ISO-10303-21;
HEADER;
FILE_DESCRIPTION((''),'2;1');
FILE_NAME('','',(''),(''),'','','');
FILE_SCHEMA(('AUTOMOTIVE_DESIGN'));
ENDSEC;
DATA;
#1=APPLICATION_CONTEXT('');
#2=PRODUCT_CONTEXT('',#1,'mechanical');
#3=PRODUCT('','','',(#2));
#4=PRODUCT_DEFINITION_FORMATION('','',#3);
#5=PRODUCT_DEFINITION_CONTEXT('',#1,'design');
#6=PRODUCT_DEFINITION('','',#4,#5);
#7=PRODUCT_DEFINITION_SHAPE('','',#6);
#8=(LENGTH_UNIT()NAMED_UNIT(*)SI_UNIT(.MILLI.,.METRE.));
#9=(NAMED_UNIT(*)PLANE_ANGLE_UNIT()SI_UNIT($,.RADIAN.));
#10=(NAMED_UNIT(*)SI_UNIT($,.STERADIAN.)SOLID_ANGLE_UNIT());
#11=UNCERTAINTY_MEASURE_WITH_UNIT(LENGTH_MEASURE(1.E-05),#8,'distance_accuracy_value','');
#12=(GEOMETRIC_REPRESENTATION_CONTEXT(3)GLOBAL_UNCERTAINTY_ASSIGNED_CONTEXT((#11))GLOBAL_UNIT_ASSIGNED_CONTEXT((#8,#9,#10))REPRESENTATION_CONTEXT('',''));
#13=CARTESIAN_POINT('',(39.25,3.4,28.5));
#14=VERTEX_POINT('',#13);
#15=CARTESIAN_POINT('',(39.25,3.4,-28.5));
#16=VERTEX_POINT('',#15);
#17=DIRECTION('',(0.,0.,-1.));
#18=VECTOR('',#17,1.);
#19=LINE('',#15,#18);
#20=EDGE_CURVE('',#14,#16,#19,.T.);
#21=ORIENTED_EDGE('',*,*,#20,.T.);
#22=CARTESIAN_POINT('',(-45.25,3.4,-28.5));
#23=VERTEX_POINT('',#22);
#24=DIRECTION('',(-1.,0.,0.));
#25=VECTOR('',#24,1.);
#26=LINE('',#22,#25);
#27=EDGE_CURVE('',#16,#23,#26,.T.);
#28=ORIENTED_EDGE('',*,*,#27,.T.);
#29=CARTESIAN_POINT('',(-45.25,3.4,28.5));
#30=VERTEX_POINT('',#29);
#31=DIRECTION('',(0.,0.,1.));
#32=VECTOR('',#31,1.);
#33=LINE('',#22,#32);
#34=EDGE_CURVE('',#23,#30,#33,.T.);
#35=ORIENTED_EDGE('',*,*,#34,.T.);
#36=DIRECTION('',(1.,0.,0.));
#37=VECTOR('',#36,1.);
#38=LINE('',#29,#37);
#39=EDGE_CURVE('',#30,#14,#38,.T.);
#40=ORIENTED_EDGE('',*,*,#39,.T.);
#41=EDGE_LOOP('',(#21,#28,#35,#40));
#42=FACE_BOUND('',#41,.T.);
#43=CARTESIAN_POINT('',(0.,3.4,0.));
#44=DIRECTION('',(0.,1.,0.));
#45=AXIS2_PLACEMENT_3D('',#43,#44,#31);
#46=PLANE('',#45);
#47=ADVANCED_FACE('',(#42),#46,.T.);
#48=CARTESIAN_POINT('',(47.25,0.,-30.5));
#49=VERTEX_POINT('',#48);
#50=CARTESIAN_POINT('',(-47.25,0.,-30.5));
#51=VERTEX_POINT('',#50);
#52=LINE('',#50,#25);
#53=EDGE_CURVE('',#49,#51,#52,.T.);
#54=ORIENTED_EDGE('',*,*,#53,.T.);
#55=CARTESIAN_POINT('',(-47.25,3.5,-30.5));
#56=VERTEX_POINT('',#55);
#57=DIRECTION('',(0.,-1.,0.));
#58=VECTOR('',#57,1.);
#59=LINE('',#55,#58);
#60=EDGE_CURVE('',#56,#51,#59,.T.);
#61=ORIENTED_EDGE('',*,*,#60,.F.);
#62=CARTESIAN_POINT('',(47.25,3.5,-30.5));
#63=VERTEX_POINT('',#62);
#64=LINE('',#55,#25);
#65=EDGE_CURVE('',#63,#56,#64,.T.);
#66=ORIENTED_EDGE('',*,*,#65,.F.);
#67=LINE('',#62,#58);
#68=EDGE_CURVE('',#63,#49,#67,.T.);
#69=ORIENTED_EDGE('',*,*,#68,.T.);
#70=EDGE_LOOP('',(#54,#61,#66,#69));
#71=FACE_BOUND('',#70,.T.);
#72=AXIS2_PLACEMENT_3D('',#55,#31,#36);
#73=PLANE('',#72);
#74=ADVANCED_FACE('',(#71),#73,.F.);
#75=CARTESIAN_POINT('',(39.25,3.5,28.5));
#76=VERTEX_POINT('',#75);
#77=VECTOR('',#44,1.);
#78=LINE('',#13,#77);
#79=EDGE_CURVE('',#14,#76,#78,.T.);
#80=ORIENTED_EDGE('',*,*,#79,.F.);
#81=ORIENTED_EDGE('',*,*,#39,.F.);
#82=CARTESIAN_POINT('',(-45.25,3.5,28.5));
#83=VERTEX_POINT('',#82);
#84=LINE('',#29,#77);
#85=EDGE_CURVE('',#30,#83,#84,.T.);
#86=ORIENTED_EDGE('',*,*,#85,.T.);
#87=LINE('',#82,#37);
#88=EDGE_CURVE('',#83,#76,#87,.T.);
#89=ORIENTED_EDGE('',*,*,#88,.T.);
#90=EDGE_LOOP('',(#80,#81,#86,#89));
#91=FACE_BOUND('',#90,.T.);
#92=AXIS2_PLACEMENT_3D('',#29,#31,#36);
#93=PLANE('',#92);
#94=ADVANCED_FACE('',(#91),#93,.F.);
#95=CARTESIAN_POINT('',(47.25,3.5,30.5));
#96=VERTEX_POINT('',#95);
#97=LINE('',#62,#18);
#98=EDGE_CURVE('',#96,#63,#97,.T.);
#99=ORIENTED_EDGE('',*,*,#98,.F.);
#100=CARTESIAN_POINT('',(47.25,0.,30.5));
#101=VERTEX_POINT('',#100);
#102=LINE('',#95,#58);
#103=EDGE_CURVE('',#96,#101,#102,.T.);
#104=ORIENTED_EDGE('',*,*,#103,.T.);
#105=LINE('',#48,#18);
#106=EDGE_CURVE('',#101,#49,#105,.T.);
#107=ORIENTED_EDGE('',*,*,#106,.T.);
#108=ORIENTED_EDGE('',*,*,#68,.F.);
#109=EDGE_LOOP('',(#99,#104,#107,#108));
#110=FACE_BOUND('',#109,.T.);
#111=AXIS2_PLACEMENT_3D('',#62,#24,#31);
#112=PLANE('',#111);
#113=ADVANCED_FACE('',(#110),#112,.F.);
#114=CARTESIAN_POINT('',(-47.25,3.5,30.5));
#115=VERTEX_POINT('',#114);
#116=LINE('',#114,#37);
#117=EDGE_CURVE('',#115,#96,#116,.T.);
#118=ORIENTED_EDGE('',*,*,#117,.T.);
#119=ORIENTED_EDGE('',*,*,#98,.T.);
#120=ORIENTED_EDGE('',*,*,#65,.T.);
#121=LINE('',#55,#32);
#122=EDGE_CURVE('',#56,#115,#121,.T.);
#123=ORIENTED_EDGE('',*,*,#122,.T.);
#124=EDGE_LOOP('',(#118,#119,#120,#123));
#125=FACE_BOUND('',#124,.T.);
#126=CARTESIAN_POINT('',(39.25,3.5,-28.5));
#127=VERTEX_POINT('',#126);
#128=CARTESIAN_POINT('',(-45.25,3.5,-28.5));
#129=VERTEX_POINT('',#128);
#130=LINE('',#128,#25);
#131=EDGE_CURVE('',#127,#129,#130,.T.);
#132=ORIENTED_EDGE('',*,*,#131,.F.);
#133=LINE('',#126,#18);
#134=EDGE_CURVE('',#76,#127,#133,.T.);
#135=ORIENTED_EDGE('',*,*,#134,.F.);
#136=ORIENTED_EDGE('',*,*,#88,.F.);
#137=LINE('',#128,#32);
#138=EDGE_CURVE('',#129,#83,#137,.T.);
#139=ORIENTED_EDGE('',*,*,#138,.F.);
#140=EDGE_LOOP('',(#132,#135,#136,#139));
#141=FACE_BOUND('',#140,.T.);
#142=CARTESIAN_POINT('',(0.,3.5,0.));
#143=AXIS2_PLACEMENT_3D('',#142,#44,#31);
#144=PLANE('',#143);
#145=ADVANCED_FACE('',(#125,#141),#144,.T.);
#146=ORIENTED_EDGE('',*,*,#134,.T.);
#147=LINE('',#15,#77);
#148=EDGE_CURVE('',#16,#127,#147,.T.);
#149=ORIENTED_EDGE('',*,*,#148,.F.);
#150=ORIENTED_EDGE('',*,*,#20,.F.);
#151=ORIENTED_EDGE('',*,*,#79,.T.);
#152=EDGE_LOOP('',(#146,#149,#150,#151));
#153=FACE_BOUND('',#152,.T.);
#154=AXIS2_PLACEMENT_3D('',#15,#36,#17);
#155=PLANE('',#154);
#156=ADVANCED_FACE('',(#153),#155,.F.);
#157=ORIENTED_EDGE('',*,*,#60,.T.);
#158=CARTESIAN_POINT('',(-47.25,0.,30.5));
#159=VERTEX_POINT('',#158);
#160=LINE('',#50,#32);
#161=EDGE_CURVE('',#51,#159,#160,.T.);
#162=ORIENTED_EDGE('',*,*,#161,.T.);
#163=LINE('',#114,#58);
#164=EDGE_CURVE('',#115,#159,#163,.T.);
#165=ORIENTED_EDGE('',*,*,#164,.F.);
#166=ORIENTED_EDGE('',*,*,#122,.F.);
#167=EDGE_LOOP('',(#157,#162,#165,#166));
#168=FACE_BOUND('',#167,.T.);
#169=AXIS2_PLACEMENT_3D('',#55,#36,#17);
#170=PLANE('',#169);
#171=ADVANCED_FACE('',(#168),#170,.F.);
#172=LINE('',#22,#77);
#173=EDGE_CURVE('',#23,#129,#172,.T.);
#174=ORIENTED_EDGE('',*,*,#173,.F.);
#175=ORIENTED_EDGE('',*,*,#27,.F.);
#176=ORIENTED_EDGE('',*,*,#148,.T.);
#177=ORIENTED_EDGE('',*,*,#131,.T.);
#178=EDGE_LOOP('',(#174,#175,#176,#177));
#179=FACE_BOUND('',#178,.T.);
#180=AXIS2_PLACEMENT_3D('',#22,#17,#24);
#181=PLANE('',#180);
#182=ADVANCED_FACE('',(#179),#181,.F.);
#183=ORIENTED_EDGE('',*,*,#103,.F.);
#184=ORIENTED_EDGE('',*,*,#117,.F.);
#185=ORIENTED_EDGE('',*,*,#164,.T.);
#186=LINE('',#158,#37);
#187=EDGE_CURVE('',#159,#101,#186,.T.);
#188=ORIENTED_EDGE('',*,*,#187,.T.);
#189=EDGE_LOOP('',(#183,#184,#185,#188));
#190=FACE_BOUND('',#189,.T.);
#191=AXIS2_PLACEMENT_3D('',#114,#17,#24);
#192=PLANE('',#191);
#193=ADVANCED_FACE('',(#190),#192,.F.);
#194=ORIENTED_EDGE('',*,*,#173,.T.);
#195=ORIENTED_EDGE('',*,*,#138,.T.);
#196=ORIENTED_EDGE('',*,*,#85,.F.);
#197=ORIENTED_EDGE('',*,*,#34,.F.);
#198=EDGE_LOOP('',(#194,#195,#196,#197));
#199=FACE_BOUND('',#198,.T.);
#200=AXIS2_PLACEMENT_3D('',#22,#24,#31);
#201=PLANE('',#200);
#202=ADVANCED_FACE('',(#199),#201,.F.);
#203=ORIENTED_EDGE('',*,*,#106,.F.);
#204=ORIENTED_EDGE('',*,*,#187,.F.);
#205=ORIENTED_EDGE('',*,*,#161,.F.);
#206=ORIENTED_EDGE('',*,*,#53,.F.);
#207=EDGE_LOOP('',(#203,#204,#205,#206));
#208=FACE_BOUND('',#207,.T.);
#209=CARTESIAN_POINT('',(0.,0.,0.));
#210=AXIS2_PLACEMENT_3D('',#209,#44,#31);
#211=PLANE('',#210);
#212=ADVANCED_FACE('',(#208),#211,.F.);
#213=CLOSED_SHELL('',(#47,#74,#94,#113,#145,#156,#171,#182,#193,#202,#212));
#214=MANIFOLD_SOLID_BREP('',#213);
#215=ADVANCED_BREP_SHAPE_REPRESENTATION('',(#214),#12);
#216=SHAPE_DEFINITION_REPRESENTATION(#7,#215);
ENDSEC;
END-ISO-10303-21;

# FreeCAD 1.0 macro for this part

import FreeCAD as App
import Part
import Sketcher
from FreeCAD import Vector


def add_polygon(sketch, points):
    """Adds a closed chain of lines whose ends are joined by coincident constraints."""
    first, n = sketch.GeometryCount, len(points)
    for a, b in zip(points, points[1:] + points[:1]):
        sketch.addGeometry(Part.LineSegment(App.Vector(*a, 0), App.Vector(*b, 0)), False)
    for i in range(n):
        sketch.addConstraint(Sketcher.Constraint("Coincident", first + i, 2, first + (i + 1) % n, 1))

doc = App.newDocument("Part")
body = doc.addObject("PartDesign::Body", "Body")

sketch1 = body.newObject("Sketcher::SketchObject", "Sketch")
sketch1.AttachmentSupport = (doc.getObject("XZ_Plane"), [""])
sketch1.MapMode = "FlatFace"
add_polygon(sketch1, [(-47.25, -30.5), (-47.25, 30.5), (47.25, 30.5), (47.25, -30.5)])
sketch1.addConstraint(Sketcher.Constraint("Vertical", 0))
sketch1.addConstraint(Sketcher.Constraint("Horizontal", 1))
sketch1.addConstraint(Sketcher.Constraint("Vertical", 2))
sketch1.addConstraint(Sketcher.Constraint("Horizontal", 3))
sketch1.addConstraint(Sketcher.Constraint("Symmetric", 0, 2, 2, 2, -1, 1))
sketch1.addConstraint(Sketcher.Constraint("DistanceY", 0, 1, 0, 2, 61.0))
sketch1.addConstraint(Sketcher.Constraint("DistanceX", 1, 1, 1, 2, 94.5))
pad1 = body.newObject("PartDesign::Pad", "Pad")
pad1.Profile = sketch1
pad1.Length = 3.5
pad1.Reversed = True

sketch2 = body.newObject("Sketcher::SketchObject", "Sketch001")
sketch2.AttachmentSupport = (doc.getObject("XZ_Plane"), [""])
sketch2.MapMode = "FlatFace"
sketch2.AttachmentOffset = App.Placement(Vector(0, 0, -3.5), App.Rotation())
add_polygon(sketch2, [(-45.25, -28.5), (-45.25, 28.5), (39.25, 28.5), (39.25, -28.5)])
sketch2.addConstraint(Sketcher.Constraint("Vertical", 0))
sketch2.addConstraint(Sketcher.Constraint("Horizontal", 1))
sketch2.addConstraint(Sketcher.Constraint("Vertical", 2))
sketch2.addConstraint(Sketcher.Constraint("Horizontal", 3))
sketch2.addConstraint(Sketcher.Constraint("DistanceY", 0, 1, 0, 2, 57.0))
sketch2.addConstraint(Sketcher.Constraint("DistanceX", 1, 1, 1, 2, 84.5))
sketch2.addConstraint(Sketcher.Constraint("DistanceY", -1, 1, 0, 2, 28.5))
sketch2.addConstraint(Sketcher.Constraint("DistanceX", 0, 2, -1, 1, 45.25))
pocket1 = body.newObject("PartDesign::Pocket", "Pocket")
pocket1.Profile = sketch2
pocket1.Length = 0.1
pocket1.Reversed = True

doc.recompute()
